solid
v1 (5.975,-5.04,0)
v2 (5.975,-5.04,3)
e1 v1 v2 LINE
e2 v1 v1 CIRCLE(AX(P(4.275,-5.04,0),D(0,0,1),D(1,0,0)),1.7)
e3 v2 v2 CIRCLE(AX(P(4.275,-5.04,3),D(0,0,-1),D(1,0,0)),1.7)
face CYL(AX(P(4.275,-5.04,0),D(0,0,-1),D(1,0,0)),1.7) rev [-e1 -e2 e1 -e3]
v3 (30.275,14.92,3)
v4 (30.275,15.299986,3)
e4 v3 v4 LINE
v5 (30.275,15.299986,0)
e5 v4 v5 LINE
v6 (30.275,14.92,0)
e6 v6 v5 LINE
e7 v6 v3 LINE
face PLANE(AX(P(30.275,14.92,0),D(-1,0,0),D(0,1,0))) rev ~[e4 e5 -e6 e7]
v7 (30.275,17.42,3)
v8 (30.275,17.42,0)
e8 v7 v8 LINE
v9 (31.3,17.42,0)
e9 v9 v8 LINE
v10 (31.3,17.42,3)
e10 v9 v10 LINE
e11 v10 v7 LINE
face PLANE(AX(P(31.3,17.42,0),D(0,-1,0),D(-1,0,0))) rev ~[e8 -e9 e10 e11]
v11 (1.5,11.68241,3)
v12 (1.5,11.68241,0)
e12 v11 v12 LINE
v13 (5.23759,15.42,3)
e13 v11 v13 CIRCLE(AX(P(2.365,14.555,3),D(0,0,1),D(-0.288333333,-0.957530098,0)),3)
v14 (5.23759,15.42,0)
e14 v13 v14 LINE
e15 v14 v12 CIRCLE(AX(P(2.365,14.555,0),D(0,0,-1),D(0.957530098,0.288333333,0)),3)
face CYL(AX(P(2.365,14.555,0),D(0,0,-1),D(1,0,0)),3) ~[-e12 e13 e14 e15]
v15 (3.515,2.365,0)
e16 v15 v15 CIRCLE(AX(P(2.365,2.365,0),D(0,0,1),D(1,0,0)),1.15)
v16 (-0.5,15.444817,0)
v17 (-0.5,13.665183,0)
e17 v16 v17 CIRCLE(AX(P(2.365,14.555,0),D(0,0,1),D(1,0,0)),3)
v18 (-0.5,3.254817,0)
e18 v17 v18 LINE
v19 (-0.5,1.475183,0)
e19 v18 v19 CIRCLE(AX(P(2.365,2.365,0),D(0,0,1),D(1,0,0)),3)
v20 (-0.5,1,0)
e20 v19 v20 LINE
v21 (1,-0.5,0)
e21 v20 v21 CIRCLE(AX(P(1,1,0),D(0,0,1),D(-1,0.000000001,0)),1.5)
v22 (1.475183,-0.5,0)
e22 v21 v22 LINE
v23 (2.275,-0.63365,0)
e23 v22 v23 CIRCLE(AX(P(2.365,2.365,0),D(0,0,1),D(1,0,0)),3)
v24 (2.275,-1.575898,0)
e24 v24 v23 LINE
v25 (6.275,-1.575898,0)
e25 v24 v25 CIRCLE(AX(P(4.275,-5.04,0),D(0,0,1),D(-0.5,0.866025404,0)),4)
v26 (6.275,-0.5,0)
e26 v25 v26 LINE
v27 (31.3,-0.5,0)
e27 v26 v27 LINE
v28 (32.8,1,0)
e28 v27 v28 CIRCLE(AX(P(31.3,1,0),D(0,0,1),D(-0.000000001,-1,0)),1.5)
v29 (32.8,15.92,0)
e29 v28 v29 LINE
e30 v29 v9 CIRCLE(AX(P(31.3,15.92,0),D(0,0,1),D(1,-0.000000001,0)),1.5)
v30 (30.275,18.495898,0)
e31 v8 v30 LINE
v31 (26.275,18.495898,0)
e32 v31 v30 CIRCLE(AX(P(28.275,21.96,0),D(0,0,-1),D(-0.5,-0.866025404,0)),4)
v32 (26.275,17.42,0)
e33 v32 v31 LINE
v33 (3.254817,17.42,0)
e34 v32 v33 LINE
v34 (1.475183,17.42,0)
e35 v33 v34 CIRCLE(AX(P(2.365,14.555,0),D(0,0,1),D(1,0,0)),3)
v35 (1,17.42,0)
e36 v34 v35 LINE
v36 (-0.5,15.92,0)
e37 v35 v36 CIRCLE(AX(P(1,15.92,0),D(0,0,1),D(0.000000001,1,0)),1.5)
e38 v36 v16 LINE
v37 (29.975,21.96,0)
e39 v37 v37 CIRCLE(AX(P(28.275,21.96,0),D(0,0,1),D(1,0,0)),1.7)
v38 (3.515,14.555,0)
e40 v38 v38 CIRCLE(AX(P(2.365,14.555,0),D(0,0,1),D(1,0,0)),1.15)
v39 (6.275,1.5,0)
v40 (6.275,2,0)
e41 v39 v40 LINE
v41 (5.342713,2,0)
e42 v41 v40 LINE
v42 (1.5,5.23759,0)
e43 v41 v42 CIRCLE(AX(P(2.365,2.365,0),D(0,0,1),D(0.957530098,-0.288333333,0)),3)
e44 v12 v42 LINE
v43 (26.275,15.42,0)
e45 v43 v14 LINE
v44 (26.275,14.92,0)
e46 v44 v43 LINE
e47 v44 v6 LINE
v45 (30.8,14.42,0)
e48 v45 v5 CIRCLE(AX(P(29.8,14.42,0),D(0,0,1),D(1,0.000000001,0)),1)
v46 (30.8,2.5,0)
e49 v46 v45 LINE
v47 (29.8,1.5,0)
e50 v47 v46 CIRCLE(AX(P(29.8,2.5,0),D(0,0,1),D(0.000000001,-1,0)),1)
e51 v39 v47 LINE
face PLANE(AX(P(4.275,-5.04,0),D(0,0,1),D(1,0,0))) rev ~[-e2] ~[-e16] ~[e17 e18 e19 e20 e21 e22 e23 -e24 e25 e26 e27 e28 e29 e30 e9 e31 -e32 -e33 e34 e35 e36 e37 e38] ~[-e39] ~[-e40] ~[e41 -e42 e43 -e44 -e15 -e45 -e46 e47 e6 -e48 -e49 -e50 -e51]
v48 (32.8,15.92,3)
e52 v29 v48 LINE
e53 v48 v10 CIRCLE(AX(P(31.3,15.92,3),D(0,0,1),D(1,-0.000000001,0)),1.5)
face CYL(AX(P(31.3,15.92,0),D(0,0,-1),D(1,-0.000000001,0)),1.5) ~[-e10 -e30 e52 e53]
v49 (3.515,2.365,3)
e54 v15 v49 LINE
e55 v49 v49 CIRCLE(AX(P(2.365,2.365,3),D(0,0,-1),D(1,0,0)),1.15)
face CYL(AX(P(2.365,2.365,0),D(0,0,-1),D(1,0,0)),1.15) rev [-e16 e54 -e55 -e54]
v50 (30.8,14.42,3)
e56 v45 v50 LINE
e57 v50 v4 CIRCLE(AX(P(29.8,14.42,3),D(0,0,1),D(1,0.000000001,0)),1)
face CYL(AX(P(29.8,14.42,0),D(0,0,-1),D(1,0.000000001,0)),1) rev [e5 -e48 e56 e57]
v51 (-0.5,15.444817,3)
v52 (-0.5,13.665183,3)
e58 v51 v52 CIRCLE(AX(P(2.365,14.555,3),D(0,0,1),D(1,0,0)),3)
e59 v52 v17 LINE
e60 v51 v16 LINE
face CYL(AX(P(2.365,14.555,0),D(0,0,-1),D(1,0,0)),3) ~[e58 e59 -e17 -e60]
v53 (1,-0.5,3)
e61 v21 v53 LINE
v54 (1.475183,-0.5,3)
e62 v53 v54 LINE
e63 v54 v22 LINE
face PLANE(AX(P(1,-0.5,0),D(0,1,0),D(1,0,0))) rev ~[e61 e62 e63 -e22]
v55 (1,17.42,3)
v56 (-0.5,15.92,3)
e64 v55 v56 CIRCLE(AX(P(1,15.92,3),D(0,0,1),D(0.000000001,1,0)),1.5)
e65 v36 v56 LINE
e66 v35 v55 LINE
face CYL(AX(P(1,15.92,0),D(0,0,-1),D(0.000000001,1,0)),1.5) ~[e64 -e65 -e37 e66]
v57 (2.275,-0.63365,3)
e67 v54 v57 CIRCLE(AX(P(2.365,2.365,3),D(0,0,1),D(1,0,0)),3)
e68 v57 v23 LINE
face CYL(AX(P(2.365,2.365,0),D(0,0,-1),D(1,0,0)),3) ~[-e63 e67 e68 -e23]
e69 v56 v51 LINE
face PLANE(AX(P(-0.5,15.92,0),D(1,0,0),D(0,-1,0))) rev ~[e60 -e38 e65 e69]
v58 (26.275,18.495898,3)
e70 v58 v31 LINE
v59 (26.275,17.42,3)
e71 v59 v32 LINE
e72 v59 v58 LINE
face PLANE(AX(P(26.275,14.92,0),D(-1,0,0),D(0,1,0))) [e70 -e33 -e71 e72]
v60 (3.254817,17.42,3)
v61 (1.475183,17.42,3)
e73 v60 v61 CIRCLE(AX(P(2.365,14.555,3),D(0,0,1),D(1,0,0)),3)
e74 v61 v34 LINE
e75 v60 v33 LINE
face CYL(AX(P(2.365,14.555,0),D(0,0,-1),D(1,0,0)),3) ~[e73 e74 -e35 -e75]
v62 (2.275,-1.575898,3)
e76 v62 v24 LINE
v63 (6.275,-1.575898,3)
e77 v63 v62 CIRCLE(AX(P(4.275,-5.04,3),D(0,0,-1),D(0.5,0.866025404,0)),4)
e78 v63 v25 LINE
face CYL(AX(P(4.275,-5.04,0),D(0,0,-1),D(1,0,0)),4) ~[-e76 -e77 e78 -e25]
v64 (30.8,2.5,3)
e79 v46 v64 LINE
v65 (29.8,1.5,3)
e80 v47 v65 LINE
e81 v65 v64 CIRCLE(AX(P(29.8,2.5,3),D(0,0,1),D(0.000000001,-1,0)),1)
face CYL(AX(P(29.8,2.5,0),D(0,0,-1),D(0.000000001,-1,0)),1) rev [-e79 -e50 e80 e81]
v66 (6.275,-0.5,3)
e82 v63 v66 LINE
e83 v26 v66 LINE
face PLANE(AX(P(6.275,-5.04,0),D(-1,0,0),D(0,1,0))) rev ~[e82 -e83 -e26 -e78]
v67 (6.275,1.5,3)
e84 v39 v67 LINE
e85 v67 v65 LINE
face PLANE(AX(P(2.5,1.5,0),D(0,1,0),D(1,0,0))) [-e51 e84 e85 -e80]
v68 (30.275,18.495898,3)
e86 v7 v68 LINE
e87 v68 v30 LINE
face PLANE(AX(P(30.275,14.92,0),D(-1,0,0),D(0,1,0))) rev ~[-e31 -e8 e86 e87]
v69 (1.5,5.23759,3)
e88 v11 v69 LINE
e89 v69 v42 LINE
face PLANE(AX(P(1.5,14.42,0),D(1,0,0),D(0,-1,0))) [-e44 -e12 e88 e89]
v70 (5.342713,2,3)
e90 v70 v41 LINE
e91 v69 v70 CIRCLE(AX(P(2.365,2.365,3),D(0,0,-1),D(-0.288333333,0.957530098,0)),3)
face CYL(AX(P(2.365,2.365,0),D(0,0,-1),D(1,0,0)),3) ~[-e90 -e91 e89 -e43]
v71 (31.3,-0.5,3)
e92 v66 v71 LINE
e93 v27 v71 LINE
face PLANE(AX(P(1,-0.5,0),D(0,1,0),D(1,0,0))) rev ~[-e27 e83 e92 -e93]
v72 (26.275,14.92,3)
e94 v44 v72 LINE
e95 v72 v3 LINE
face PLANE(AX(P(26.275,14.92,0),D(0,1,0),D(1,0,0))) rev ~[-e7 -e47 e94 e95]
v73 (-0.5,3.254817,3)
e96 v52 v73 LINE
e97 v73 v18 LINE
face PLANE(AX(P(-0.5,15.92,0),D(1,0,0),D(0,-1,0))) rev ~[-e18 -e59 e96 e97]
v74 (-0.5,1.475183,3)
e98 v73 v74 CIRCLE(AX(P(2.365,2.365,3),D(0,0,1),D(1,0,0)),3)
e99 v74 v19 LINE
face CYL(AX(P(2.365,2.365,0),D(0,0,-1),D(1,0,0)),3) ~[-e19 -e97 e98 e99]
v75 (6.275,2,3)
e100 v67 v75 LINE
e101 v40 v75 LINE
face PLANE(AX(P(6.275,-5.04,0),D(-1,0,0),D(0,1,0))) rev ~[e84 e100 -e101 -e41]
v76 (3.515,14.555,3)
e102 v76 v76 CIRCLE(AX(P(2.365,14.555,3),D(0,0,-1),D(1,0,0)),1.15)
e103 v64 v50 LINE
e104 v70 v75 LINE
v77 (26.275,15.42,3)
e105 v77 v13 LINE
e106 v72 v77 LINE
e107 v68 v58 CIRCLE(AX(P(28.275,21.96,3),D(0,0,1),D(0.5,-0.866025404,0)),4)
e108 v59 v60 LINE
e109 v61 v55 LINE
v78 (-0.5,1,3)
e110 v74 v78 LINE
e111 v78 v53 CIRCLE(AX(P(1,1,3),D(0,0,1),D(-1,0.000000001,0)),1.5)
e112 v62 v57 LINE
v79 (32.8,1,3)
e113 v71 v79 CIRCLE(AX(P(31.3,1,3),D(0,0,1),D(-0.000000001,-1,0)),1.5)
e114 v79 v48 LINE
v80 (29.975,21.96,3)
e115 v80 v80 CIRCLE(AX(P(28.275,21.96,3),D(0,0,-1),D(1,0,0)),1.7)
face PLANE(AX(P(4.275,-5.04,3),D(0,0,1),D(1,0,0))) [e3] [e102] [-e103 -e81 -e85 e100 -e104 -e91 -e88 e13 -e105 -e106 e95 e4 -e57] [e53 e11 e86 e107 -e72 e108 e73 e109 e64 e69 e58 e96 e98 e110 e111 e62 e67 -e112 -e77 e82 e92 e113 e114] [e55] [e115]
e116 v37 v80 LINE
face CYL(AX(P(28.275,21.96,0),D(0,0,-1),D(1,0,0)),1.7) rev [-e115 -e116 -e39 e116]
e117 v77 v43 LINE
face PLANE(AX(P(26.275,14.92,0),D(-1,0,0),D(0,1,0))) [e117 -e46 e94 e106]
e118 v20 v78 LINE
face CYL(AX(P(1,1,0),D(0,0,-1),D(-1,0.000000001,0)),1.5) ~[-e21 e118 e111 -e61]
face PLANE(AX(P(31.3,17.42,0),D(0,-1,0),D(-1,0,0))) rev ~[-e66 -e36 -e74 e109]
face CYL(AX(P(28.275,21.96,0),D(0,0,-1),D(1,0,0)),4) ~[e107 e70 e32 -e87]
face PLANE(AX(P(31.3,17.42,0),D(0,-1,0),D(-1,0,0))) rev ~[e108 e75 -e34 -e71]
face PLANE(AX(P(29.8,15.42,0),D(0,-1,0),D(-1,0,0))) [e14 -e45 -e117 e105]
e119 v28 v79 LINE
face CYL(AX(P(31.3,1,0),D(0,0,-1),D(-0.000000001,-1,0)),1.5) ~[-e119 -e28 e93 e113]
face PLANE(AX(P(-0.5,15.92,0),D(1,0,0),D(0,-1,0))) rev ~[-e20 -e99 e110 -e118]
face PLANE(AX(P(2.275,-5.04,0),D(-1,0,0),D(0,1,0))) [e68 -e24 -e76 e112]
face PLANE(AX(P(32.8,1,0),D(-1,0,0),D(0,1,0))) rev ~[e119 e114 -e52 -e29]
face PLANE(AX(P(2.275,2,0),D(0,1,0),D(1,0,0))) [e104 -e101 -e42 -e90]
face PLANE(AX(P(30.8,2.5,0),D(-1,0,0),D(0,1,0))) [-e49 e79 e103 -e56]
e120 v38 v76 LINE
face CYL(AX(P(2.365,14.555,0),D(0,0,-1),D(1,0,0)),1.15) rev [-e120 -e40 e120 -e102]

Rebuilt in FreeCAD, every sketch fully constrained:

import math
import FreeCAD as App
import Part
import Sketcher
Q = App.Units.Quantity


def add_polygon(sketch, points):
    """Adds a closed chain of lines whose ends are joined by coincident constraints."""
    first, n = sketch.GeometryCount, len(points)
    for a, b in zip(points, points[1:] + points[:1]):
        sketch.addGeometry(Part.LineSegment(App.Vector(*a, 0), App.Vector(*b, 0)), False)
    for i in range(n):
        sketch.addConstraint(Sketcher.Constraint("Coincident", first + i, 2, first + (i + 1) % n, 1))

doc = App.newDocument("Part")
body = doc.addObject("PartDesign::Body", "Body")

# Sketch on XY plane
sketch1 = body.newObject("Sketcher::SketchObject", "Sketch")
sketch1.AttachmentSupport = (doc.getObject("XY_Plane"), [""])
sketch1.MapMode = "FlatFace"
sketch1.addGeometry(Part.LineSegment(App.Vector(1, -0.5, 0), App.Vector(31.3, -0.5, 0)), False)
sketch1.addGeometry(Part.ArcOfCircle(Part.Circle(App.Vector(31.3, 1, 0), App.Vector(0, 0, 1), 1.5), math.radians(-90), math.radians(0)), False)
sketch1.addGeometry(Part.LineSegment(App.Vector(32.8, 1, 0), App.Vector(32.8, 15.92, 0)), False)
sketch1.addGeometry(Part.ArcOfCircle(Part.Circle(App.Vector(31.3, 15.92, 0), App.Vector(0, 0, 1), 1.5), math.radians(0), math.radians(90)), False)
sketch1.addGeometry(Part.LineSegment(App.Vector(31.3, 17.42, 0), App.Vector(1, 17.42, 0)), False)
sketch1.addGeometry(Part.ArcOfCircle(Part.Circle(App.Vector(1, 15.92, 0), App.Vector(0, 0, 1), 1.5), math.radians(90), math.radians(180)), False)
sketch1.addGeometry(Part.LineSegment(App.Vector(-0.5, 15.92, 0), App.Vector(-0.5, 1, 0)), False)
sketch1.addGeometry(Part.ArcOfCircle(Part.Circle(App.Vector(1, 1, 0), App.Vector(0, 0, 1), 1.5), math.radians(180), math.radians(270)), False)
sketch1.addGeometry(Part.LineSegment(App.Vector(29.8, 1.5, 0), App.Vector(2.5, 1.5, 0)), False)
sketch1.addGeometry(Part.ArcOfCircle(Part.Circle(App.Vector(2.5, 2.5, 0), App.Vector(0, 0, 1), 1), math.radians(-180), math.radians(-90)), False)
sketch1.addGeometry(Part.LineSegment(App.Vector(1.5, 2.5, 0), App.Vector(1.5, 14.42, 0)), False)
sketch1.addGeometry(Part.ArcOfCircle(Part.Circle(App.Vector(2.5, 14.42, 0), App.Vector(0, 0, 1), 1), math.radians(90), math.radians(180)), False)
sketch1.addGeometry(Part.LineSegment(App.Vector(2.5, 15.42, 0), App.Vector(29.8, 15.42, 0)), False)
sketch1.addGeometry(Part.ArcOfCircle(Part.Circle(App.Vector(29.8, 14.42, 0), App.Vector(0, 0, 1), 1), math.radians(0), math.radians(90)), False)
sketch1.addGeometry(Part.LineSegment(App.Vector(30.8, 14.42, 0), App.Vector(30.8, 2.5, 0)), False)
sketch1.addGeometry(Part.ArcOfCircle(Part.Circle(App.Vector(29.8, 2.5, 0), App.Vector(0, 0, 1), 1), math.radians(-90), math.radians(0)), False)
sketch1.addConstraint(Sketcher.Constraint("Tangent", 0, 2, 1, 1))
sketch1.addConstraint(Sketcher.Constraint("Tangent", 1, 2, 2, 1))
sketch1.addConstraint(Sketcher.Constraint("Tangent", 2, 2, 3, 1))
sketch1.addConstraint(Sketcher.Constraint("Tangent", 3, 2, 4, 1))
sketch1.addConstraint(Sketcher.Constraint("Tangent", 4, 2, 5, 1))
sketch1.addConstraint(Sketcher.Constraint("Tangent", 5, 2, 6, 1))
sketch1.addConstraint(Sketcher.Constraint("Tangent", 6, 2, 7, 1))
sketch1.addConstraint(Sketcher.Constraint("Tangent", 7, 2, 0, 1))
sketch1.addConstraint(Sketcher.Constraint("Tangent", 8, 2, 9, 2))
sketch1.addConstraint(Sketcher.Constraint("Tangent", 9, 1, 10, 1))
sketch1.addConstraint(Sketcher.Constraint("Tangent", 10, 2, 11, 2))
sketch1.addConstraint(Sketcher.Constraint("Tangent", 11, 1, 12, 1))
sketch1.addConstraint(Sketcher.Constraint("Tangent", 12, 2, 13, 2))
sketch1.addConstraint(Sketcher.Constraint("Tangent", 13, 1, 14, 1))
sketch1.addConstraint(Sketcher.Constraint("Tangent", 14, 2, 15, 2))
sketch1.addConstraint(Sketcher.Constraint("Tangent", 15, 1, 8, 1))
sketch1.addConstraint(Sketcher.Constraint("Horizontal", 0))
sketch1.addConstraint(Sketcher.Constraint("Vertical", 2))
sketch1.addConstraint(Sketcher.Constraint("Horizontal", 4))
sketch1.addConstraint(Sketcher.Constraint("Vertical", 6))
sketch1.addConstraint(Sketcher.Constraint("Horizontal", 8))
sketch1.addConstraint(Sketcher.Constraint("Vertical", 10))
sketch1.addConstraint(Sketcher.Constraint("Horizontal", 12))
sketch1.addConstraint(Sketcher.Constraint("Vertical", 14))
sketch1.addConstraint(Sketcher.Constraint("Equal", 1, 3))
sketch1.addConstraint(Sketcher.Constraint("Equal", 3, 5))
sketch1.addConstraint(Sketcher.Constraint("Equal", 5, 7))
sketch1.addConstraint(Sketcher.Constraint("Equal", 9, 11))
sketch1.addConstraint(Sketcher.Constraint("Equal", 11, 13))
sketch1.addConstraint(Sketcher.Constraint("Equal", 13, 15))
sketch1.addConstraint(Sketcher.Constraint("Radius", 9, Q("1 mm")))
sketch1.addConstraint(Sketcher.Constraint("Radius", 1, Q("1.5 mm")))
sketch1.addConstraint(Sketcher.Constraint("DistanceX", 0, 1, 0, 2, Q("30.3 mm")))
sketch1.addConstraint(Sketcher.Constraint("DistanceX", 8, 2, 8, 1, Q("27.3 mm")))
sketch1.addConstraint(Sketcher.Constraint("DistanceY", -1, 1, 1, 3, Q("1 mm")))
sketch1.addConstraint(Sketcher.Constraint("DistanceX", -1, 1, 5, 3, Q("1 mm")))
sketch1.addConstraint(Sketcher.Constraint("DistanceY", 0, 2, 15, 3, Q("3 mm")))
sketch1.addConstraint(Sketcher.Constraint("DistanceX", 15, 3, 1, 2, Q("3 mm")))
sketch1.addConstraint(Sketcher.Constraint("DistanceY", 13, 3, 3, 2, Q("3 mm")))
sketch1.addConstraint(Sketcher.Constraint("DistanceY", 2, 1, 2, 2, Q("14.92 mm")))
pad1 = body.newObject("PartDesign::Pad", "Pad")
pad1.Profile = sketch1
pad1.Length = 3

# Sketch on XY plane
sketch2 = body.newObject("Sketcher::SketchObject", "Sketch001")
sketch2.AttachmentSupport = (doc.getObject("XY_Plane"), [""])
sketch2.MapMode = "FlatFace"
sketch2.addGeometry(Part.Circle(App.Vector(2.365, 2.365, 0), App.Vector(0, 0, 1), 3), False)
sketch2.addGeometry(Part.Circle(App.Vector(2.365, 14.555, 0), App.Vector(0, 0, 1), 3), False)
sketch2.addConstraint(Sketcher.Constraint("Equal", 0, 1))
sketch2.addConstraint(Sketcher.Constraint("Vertical", 0, 3, 1, 3))
sketch2.addConstraint(Sketcher.Constraint("Diameter", 0, Q("6 mm")))
sketch2.addConstraint(Sketcher.Constraint("DistanceY", 0, 3, 1, 3, Q("12.19 mm")))
sketch2.addConstraint(Sketcher.Constraint("DistanceX", -1, 1, 0, 3, Q("2.365 mm")))
sketch2.addConstraint(Sketcher.Constraint("DistanceY", -1, 1, 0, 3, Q("2.365 mm")))
pad2 = body.newObject("PartDesign::Pad", "Pad001")
pad2.Profile = sketch2
pad2.Length = 3

# Sketch on XY plane
sketch3 = body.newObject("Sketcher::SketchObject", "Sketch002")
sketch3.AttachmentSupport = (doc.getObject("XY_Plane"), [""])
sketch3.MapMode = "FlatFace"
add_polygon(sketch3, [(2.275, 2), (2.275, -5.04), (6.275, -5.04), (6.275, 2)])  # lines 0-3
add_polygon(sketch3, [(26.275, 21.96), (26.275, 14.92), (30.275, 14.92), (30.275, 21.96)])  # lines 4-7
sketch3.addConstraint(Sketcher.Constraint("Vertical", 0))
sketch3.addConstraint(Sketcher.Constraint("Horizontal", 1))
sketch3.addConstraint(Sketcher.Constraint("Vertical", 2))
sketch3.addConstraint(Sketcher.Constraint("Horizontal", 3))
sketch3.addConstraint(Sketcher.Constraint("Vertical", 4))
sketch3.addConstraint(Sketcher.Constraint("Horizontal", 5))
sketch3.addConstraint(Sketcher.Constraint("Vertical", 6))
sketch3.addConstraint(Sketcher.Constraint("Horizontal", 7))
sketch3.addConstraint(Sketcher.Constraint("Equal", 3, 5))
sketch3.addConstraint(Sketcher.Constraint("Equal", 2, 4))
sketch3.addConstraint(Sketcher.Constraint("DistanceX", 1, 1, 1, 2, Q("4 mm")))
sketch3.addConstraint(Sketcher.Constraint("DistanceY", -1, 1, 2, 2, Q("2 mm")))
sketch3.addConstraint(Sketcher.Constraint("DistanceX", 2, 2, 4, 2, Q("20 mm")))
sketch3.addConstraint(Sketcher.Constraint("DistanceY", 1, 2, 6, 2, Q("27 mm")))
sketch3.addConstraint(Sketcher.Constraint("DistanceY", 0, 2, 0, 1, Q("7.04 mm")))
sketch3.addConstraint(Sketcher.Constraint("DistanceX", -1, 1, 0, 2, Q("2.275 mm")))
pad3 = body.newObject("PartDesign::Pad", "Pad002")
pad3.Profile = sketch3
pad3.Length = 3

# Sketch on XY plane
sketch4 = body.newObject("Sketcher::SketchObject", "Sketch003")
sketch4.AttachmentSupport = (doc.getObject("XY_Plane"), [""])
sketch4.MapMode = "FlatFace"
sketch4.addGeometry(Part.Circle(App.Vector(4.275, -5.04, 0), App.Vector(0, 0, 1), 4), False)
sketch4.addGeometry(Part.Circle(App.Vector(28.275, 21.96, 0), App.Vector(0, 0, 1), 4), False)
sketch4.addConstraint(Sketcher.Constraint("Equal", 0, 1))
sketch4.addConstraint(Sketcher.Constraint("Diameter", 0, Q("8 mm")))
sketch4.addConstraint(Sketcher.Constraint("DistanceX", 0, 3, 1, 3, Q("24 mm")))
sketch4.addConstraint(Sketcher.Constraint("DistanceY", 0, 3, 1, 3, Q("27 mm")))
sketch4.addConstraint(Sketcher.Constraint("DistanceY", 0, 3, -1, 1, Q("5.04 mm")))
sketch4.addConstraint(Sketcher.Constraint("DistanceX", -1, 1, 0, 3, Q("4.275 mm")))
pad4 = body.newObject("PartDesign::Pad", "Pad003")
pad4.Profile = sketch4
pad4.Length = 3

# Sketch on XY plane
sketch5 = body.newObject("Sketcher::SketchObject", "Sketch004")
sketch5.AttachmentSupport = (doc.getObject("XY_Plane"), [""])
sketch5.MapMode = "FlatFace"
sketch5.addGeometry(Part.Circle(App.Vector(2.365, 2.365, 0), App.Vector(0, 0, 1), 1.15), False)
sketch5.addGeometry(Part.Circle(App.Vector(2.365, 14.555, 0), App.Vector(0, 0, 1), 1.15), False)
sketch5.addConstraint(Sketcher.Constraint("Equal", 0, 1))
sketch5.addConstraint(Sketcher.Constraint("Vertical", 0, 3, 1, 3))
sketch5.addConstraint(Sketcher.Constraint("Diameter", 0, Q("2.3 mm")))
sketch5.addConstraint(Sketcher.Constraint("DistanceY", 0, 3, 1, 3, Q("12.19 mm")))
sketch5.addConstraint(Sketcher.Constraint("DistanceX", -1, 1, 0, 3, Q("2.365 mm")))
sketch5.addConstraint(Sketcher.Constraint("DistanceY", -1, 1, 0, 3, Q("2.365 mm")))
pocket1 = body.newObject("PartDesign::Pocket", "Pocket")
pocket1.Profile = sketch5
pocket1.Length = 4
pocket1.Reversed = True

# Sketch on XY plane
sketch6 = body.newObject("Sketcher::SketchObject", "Sketch005")
sketch6.AttachmentSupport = (doc.getObject("XY_Plane"), [""])
sketch6.MapMode = "FlatFace"
sketch6.addGeometry(Part.Circle(App.Vector(4.275, -5.04, 0), App.Vector(0, 0, 1), 1.7), False)
sketch6.addGeometry(Part.Circle(App.Vector(28.275, 21.96, 0), App.Vector(0, 0, 1), 1.7), False)
sketch6.addConstraint(Sketcher.Constraint("Equal", 0, 1))
sketch6.addConstraint(Sketcher.Constraint("Diameter", 0, Q("3.4 mm")))
sketch6.addConstraint(Sketcher.Constraint("DistanceX", 0, 3, 1, 3, Q("24 mm")))
sketch6.addConstraint(Sketcher.Constraint("DistanceY", 0, 3, 1, 3, Q("27 mm")))
sketch6.addConstraint(Sketcher.Constraint("DistanceY", 0, 3, -1, 1, Q("5.04 mm")))
sketch6.addConstraint(Sketcher.Constraint("DistanceX", -1, 1, 0, 3, Q("4.275 mm")))
pocket2 = body.newObject("PartDesign::Pocket", "Pocket001")
pocket2.Profile = sketch6
pocket2.Length = 4
pocket2.Reversed = True

doc.recompute()
